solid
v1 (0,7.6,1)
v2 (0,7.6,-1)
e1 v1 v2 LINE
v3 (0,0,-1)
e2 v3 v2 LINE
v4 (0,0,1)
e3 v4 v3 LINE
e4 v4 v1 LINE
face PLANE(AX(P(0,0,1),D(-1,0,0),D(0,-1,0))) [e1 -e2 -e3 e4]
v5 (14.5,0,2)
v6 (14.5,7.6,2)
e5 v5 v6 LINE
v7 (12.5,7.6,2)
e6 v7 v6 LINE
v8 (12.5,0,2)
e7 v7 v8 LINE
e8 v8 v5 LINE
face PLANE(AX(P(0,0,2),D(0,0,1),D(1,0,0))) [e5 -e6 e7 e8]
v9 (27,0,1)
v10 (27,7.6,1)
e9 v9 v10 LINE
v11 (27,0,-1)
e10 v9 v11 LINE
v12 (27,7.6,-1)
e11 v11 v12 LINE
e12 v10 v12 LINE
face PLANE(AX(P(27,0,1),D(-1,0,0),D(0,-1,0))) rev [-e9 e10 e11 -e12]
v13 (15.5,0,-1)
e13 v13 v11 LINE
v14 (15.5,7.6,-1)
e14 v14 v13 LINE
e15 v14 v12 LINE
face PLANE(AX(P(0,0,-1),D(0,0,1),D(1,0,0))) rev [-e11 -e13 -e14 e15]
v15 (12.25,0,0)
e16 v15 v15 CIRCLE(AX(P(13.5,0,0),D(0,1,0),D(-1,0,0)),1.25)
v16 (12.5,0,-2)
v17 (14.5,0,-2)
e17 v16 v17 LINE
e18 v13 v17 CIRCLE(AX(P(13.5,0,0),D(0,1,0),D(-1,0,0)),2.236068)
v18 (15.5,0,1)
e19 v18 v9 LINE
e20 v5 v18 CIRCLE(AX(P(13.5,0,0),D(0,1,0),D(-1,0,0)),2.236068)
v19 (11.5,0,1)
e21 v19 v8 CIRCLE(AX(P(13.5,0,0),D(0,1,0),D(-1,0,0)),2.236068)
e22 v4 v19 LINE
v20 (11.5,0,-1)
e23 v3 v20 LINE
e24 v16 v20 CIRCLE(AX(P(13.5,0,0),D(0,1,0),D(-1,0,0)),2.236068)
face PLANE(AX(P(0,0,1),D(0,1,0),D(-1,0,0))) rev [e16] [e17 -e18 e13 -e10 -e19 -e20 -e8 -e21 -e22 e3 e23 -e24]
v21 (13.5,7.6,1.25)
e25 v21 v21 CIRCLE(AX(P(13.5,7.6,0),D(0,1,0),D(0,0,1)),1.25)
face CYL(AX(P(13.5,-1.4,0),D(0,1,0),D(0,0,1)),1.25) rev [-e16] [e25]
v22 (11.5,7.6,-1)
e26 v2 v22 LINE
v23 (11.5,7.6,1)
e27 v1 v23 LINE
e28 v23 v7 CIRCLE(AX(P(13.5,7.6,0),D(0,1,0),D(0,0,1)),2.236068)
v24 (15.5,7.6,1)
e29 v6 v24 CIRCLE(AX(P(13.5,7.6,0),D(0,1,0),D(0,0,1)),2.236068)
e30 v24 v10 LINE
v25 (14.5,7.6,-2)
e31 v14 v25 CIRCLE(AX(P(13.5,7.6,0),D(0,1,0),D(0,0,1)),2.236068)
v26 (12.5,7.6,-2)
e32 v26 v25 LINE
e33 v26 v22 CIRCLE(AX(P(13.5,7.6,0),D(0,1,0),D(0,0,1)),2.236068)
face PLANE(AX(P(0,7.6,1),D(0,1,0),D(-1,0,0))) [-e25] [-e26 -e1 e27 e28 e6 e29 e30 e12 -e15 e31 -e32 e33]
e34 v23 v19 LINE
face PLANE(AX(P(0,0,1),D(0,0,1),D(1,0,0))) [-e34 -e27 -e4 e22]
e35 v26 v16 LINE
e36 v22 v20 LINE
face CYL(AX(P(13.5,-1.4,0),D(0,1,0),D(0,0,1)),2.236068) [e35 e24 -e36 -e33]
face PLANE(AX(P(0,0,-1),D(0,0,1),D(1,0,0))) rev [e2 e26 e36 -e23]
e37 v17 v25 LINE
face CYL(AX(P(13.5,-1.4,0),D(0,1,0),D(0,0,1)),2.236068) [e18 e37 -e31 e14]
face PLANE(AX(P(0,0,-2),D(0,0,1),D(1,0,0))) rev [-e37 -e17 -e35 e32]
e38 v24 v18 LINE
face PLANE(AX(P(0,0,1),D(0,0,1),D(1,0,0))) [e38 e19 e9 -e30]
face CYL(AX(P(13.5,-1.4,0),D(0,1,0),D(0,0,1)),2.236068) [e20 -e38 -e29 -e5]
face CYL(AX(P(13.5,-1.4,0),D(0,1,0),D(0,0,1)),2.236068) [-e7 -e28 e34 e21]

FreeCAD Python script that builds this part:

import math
import FreeCAD as App
import Part
import Sketcher
Q = App.Units.Quantity

doc = App.newDocument("Part")
params = doc.addObject("Spreadsheet::Sheet", "Params")
for row, (alias, value) in enumerate([
    ("sketch1_width", "11.5 mm"),
    ("sketch1_height", "7.6 mm"),
    ("pad1_length", "1 mm"),
    ("sketch2_width", "11.5 mm"),
    ("sketch2_height", "7.6 mm"),
    ("pad2_length", "1 mm"),
    ("sketch3_width", "11.5 mm"),
    ("sketch3_height", "7.6 mm"),
    ("pad3_length", "1 mm"),
    ("sketch4_width", "4 mm"),
    ("sketch4_height", "7.6 mm"),
    ("pad4_length", "2 mm"),
    ("pad4_length2", "2 mm"),
    ("sketch5_diameter", "2.5 mm"),
    ("sketch5_width", "1 mm"),
    ("pocket1_length", "9 mm"),
], start=1):
    params.set(f"A{row}", alias)
    params.set(f"B{row}", "=" + value)
    params.setAlias(f"B{row}", alias)

body = doc.addObject("PartDesign::Body", "Body")

sketch1 = doc.addObject("Sketcher::SketchObject", "Sketch")
body.addObject(sketch1)
sketch1.AttachmentSupport = (doc.XY_Plane, [""])
sketch1.MapMode = "FlatFace"
sketch1.addGeometry(Part.LineSegment(App.Vector(0, 8, 0), App.Vector(0, 0, 0)), False)
sketch1.addGeometry(Part.LineSegment(App.Vector(0, 0, 0), App.Vector(12, 0, 0)), False)
sketch1.addGeometry(Part.LineSegment(App.Vector(12, 0, 0), App.Vector(12, 8, 0)), False)
sketch1.addGeometry(Part.LineSegment(App.Vector(12, 8, 0), App.Vector(0, 8, 0)), False)
sketch1.addConstraint(Sketcher.Constraint("Coincident", 0, 2, 1, 1))
sketch1.addConstraint(Sketcher.Constraint("Coincident", 1, 2, 2, 1))
sketch1.addConstraint(Sketcher.Constraint("Coincident", 2, 2, 3, 1))
sketch1.addConstraint(Sketcher.Constraint("Coincident", 3, 2, 0, 1))
sketch1.addConstraint(Sketcher.Constraint("Vertical", 0))
sketch1.addConstraint(Sketcher.Constraint("Horizontal", 1))
sketch1.addConstraint(Sketcher.Constraint("Vertical", 2))
sketch1.addConstraint(Sketcher.Constraint("Horizontal", 3))
sketch1.addConstraint(Sketcher.Constraint("Coincident", 0, 2, -1, 1))
sketch1.addConstraint(Sketcher.Constraint("DistanceX", 1, 1, 1, 2, Q("11.5 mm")))
sketch1.addConstraint(Sketcher.Constraint("DistanceY", 0, 2, 0, 1, Q("7.6 mm")))
sketch1.setExpression("Constraints[9]", "Params.sketch1_width")
sketch1.setExpression("Constraints[10]", "Params.sketch1_height")
pad1 = doc.addObject("PartDesign::Pad", "Pad")
body.addObject(pad1)
pad1.Profile = sketch1
pad1.setExpression("Length", "Params.pad1_length")
body2 = doc.addObject("PartDesign::Body", "Body001")

sketch2 = doc.addObject("Sketcher::SketchObject", "Sketch001")
body2.addObject(sketch2)
sketch2.AttachmentSupport = (doc.getObject("XY_Plane001"), [""])
sketch2.MapMode = "FlatFace"
sketch2.addGeometry(Part.LineSegment(App.Vector(16, 8, 0), App.Vector(16, 0, 0)), False)
sketch2.addGeometry(Part.LineSegment(App.Vector(16, 0, 0), App.Vector(27, 0, 0)), False)
sketch2.addGeometry(Part.LineSegment(App.Vector(27, 0, 0), App.Vector(27, 8, 0)), False)
sketch2.addGeometry(Part.LineSegment(App.Vector(27, 8, 0), App.Vector(16, 8, 0)), False)
sketch2.addConstraint(Sketcher.Constraint("Coincident", 0, 2, 1, 1))
sketch2.addConstraint(Sketcher.Constraint("Coincident", 1, 2, 2, 1))
sketch2.addConstraint(Sketcher.Constraint("Coincident", 2, 2, 3, 1))
sketch2.addConstraint(Sketcher.Constraint("Coincident", 3, 2, 0, 1))
sketch2.addConstraint(Sketcher.Constraint("Vertical", 0))
sketch2.addConstraint(Sketcher.Constraint("Horizontal", 1))
sketch2.addConstraint(Sketcher.Constraint("Vertical", 2))
sketch2.addConstraint(Sketcher.Constraint("Horizontal", 3))
sketch2.addConstraint(Sketcher.Constraint("PointOnObject", 0, 2, -1))
sketch2.addConstraint(Sketcher.Constraint("DistanceX", 1, 1, 1, 2, Q("11.5 mm")))
sketch2.addConstraint(Sketcher.Constraint("DistanceY", 0, 2, 0, 1, Q("7.6 mm")))
sketch2.addConstraint(Sketcher.Constraint("DistanceX", -1, 1, 1, 2, Q("27 mm")))
sketch2.setExpression("Constraints[9]", "Params.sketch2_width")
sketch2.setExpression("Constraints[10]", "Params.sketch2_height")
pad2 = doc.addObject("PartDesign::Pad", "Pad001")
body2.addObject(pad2)
pad2.Profile = sketch2
pad2.setExpression("Length", "Params.pad2_length")
body.AllowCompound = True
doc.recompute()

boolean = doc.addObject("PartDesign::Boolean", "Boolean")
body.addObject(boolean)
boolean.Type = "Fuse"
boolean.addObjects([body2])

sketch3 = doc.addObject("Sketcher::SketchObject", "Sketch002")
body.addObject(sketch3)
sketch3.AttachmentSupport = (doc.XY_Plane, [""])
sketch3.MapMode = "FlatFace"
sketch3.addGeometry(Part.LineSegment(App.Vector(16, 8, 0), App.Vector(16, 0, 0)), False)
sketch3.addGeometry(Part.LineSegment(App.Vector(16, 0, 0), App.Vector(27, 0, 0)), False)
sketch3.addGeometry(Part.LineSegment(App.Vector(27, 0, 0), App.Vector(27, 8, 0)), False)
sketch3.addGeometry(Part.LineSegment(App.Vector(27, 8, 0), App.Vector(16, 8, 0)), False)
sketch3.addGeometry(Part.LineSegment(App.Vector(0, 8, 0), App.Vector(0, 0, 0)), False)
sketch3.addGeometry(Part.LineSegment(App.Vector(0, 0, 0), App.Vector(12, 0, 0)), False)
sketch3.addGeometry(Part.LineSegment(App.Vector(12, 0, 0), App.Vector(12, 8, 0)), False)
sketch3.addGeometry(Part.LineSegment(App.Vector(12, 8, 0), App.Vector(0, 8, 0)), False)
sketch3.addConstraint(Sketcher.Constraint("Coincident", 0, 2, 1, 1))
sketch3.addConstraint(Sketcher.Constraint("Coincident", 1, 2, 2, 1))
sketch3.addConstraint(Sketcher.Constraint("Coincident", 2, 2, 3, 1))
sketch3.addConstraint(Sketcher.Constraint("Coincident", 3, 2, 0, 1))
sketch3.addConstraint(Sketcher.Constraint("Coincident", 4, 2, 5, 1))
sketch3.addConstraint(Sketcher.Constraint("Coincident", 5, 2, 6, 1))
sketch3.addConstraint(Sketcher.Constraint("Coincident", 6, 2, 7, 1))
sketch3.addConstraint(Sketcher.Constraint("Coincident", 7, 2, 4, 1))
sketch3.addConstraint(Sketcher.Constraint("Vertical", 0))
sketch3.addConstraint(Sketcher.Constraint("Horizontal", 1))
sketch3.addConstraint(Sketcher.Constraint("Vertical", 2))
sketch3.addConstraint(Sketcher.Constraint("Horizontal", 3))
sketch3.addConstraint(Sketcher.Constraint("Vertical", 4))
sketch3.addConstraint(Sketcher.Constraint("Horizontal", 5))
sketch3.addConstraint(Sketcher.Constraint("Vertical", 6))
sketch3.addConstraint(Sketcher.Constraint("Horizontal", 7))
sketch3.addConstraint(Sketcher.Constraint("Coincident", 4, 2, -1, 1))
sketch3.addConstraint(Sketcher.Constraint("PointOnObject", 0, 2, -1))
sketch3.addConstraint(Sketcher.Constraint("Horizontal", 3, 2, 6, 2))
sketch3.addConstraint(Sketcher.Constraint("Equal", 3, 5))
sketch3.addConstraint(Sketcher.Constraint("DistanceX", 1, 1, 1, 2, Q("11.5 mm")))
sketch3.addConstraint(Sketcher.Constraint("DistanceY", 0, 2, 0, 1, Q("7.6 mm")))
sketch3.addConstraint(Sketcher.Constraint("DistanceX", -1, 1, 1, 2, Q("27 mm")))
sketch3.setExpression("Constraints[20]", "Params.sketch3_width")
sketch3.setExpression("Constraints[21]", "Params.sketch3_height")
pad3 = doc.addObject("PartDesign::Pad", "Pad002")
body.addObject(pad3)
pad3.Profile = sketch3
pad3.setExpression("Length", "Params.pad3_length")
pad3.Reversed = True

sketch4 = doc.addObject("Sketcher::SketchObject", "Sketch003")
body.addObject(sketch4)
sketch4.AttachmentSupport = (doc.XY_Plane, [""])
sketch4.MapMode = "FlatFace"
sketch4.addGeometry(Part.LineSegment(App.Vector(11.5, 7.6, 0), App.Vector(11.5, 0, 0)), False)
sketch4.addGeometry(Part.LineSegment(App.Vector(11.5, 0, 0), App.Vector(15.5, 0, 0)), False)
sketch4.addGeometry(Part.LineSegment(App.Vector(15.5, 0, 0), App.Vector(15.5, 7.6, 0)), False)
sketch4.addGeometry(Part.LineSegment(App.Vector(15.5, 7.6, 0), App.Vector(11.5, 7.6, 0)), False)
sketch4.addConstraint(Sketcher.Constraint("Coincident", 0, 2, 1, 1))
sketch4.addConstraint(Sketcher.Constraint("Coincident", 1, 2, 2, 1))
sketch4.addConstraint(Sketcher.Constraint("Coincident", 2, 2, 3, 1))
sketch4.addConstraint(Sketcher.Constraint("Coincident", 3, 2, 0, 1))
sketch4.addConstraint(Sketcher.Constraint("Vertical", 0))
sketch4.addConstraint(Sketcher.Constraint("Horizontal", 1))
sketch4.addConstraint(Sketcher.Constraint("Vertical", 2))
sketch4.addConstraint(Sketcher.Constraint("Horizontal", 3))
sketch4.addConstraint(Sketcher.Constraint("PointOnObject", 0, 2, -1))
sketch4.addConstraint(Sketcher.Constraint("DistanceX", 1, 1, 1, 2, Q("4 mm")))
sketch4.addConstraint(Sketcher.Constraint("DistanceY", 0, 2, 0, 1, Q("7.6 mm")))
sketch4.addConstraint(Sketcher.Constraint("DistanceX", -1, 1, 0, 2, Q("11.5 mm")))
sketch4.setExpression("Constraints[9]", "Params.sketch4_width")
sketch4.setExpression("Constraints[10]", "Params.sketch4_height")
pad4 = doc.addObject("PartDesign::Pad", "Pad003")
body.addObject(pad4)
pad4.Profile = sketch4
pad4.Type = "TwoLengths"
pad4.setExpression("Length", "Params.pad4_length")
pad4.setExpression("Length2", "Params.pad4_length2")

sketch5 = doc.addObject("Sketcher::SketchObject", "Sketch004")
body.addObject(sketch5)
sketch5.AttachmentSupport = (doc.XZ_Plane, [""])
sketch5.MapMode = "FlatFace"
sketch5.AttachmentOffset = App.Placement(App.Vector(0, 0, -7.6), App.Rotation())
sketch5.addGeometry(Part.LineSegment(App.Vector(12.5, -2, 0), App.Vector(11.5, -2, 0)), False)
sketch5.addGeometry(Part.LineSegment(App.Vector(11.5, -2, 0), App.Vector(11.5, -1, 0)), False)
sketch5.addGeometry(Part.ArcOfCircle(Part.Circle(App.Vector(13.5, 0, 0), App.Vector(0, 0, 1), 2.2), math.radians(-153), math.radians(-117)), False)
sketch5.addGeometry(Part.LineSegment(App.Vector(15.5, -2, 0), App.Vector(14.5, -2, 0)), False)
sketch5.addGeometry(Part.ArcOfCircle(Part.Circle(App.Vector(13.5, 0, 0), App.Vector(0, 0, 1), 2.2), math.radians(-63), math.radians(-27)), False)
sketch5.addGeometry(Part.LineSegment(App.Vector(15.5, -1, 0), App.Vector(15.5, -2, 0)), False)
sketch5.addGeometry(Part.LineSegment(App.Vector(15.5, 2, 0), App.Vector(15.5, 1, 0)), False)
sketch5.addGeometry(Part.ArcOfCircle(Part.Circle(App.Vector(13.5, 0, 0), App.Vector(0, 0, 1), 2.2), math.radians(27), math.radians(63)), False)
sketch5.addGeometry(Part.LineSegment(App.Vector(14.5, 2, 0), App.Vector(15.5, 2, 0)), False)
sketch5.addGeometry(Part.ArcOfCircle(Part.Circle(App.Vector(13.5, 0, 0), App.Vector(0, 0, 1), 2.2), math.radians(117), math.radians(153)), False)
sketch5.addGeometry(Part.LineSegment(App.Vector(11.5, 1, 0), App.Vector(11.5, 2, 0)), False)
sketch5.addGeometry(Part.LineSegment(App.Vector(11.5, 2, 0), App.Vector(12.5, 2, 0)), False)
sketch5.addGeometry(Part.Circle(App.Vector(13.5, 0, 0), App.Vector(0, 0, 1), 1.2), False)
sketch5.addConstraint(Sketcher.Constraint("Coincident", 0, 2, 1, 1))
sketch5.addConstraint(Sketcher.Constraint("Coincident", 1, 2, 2, 1))
sketch5.addConstraint(Sketcher.Constraint("Coincident", 2, 2, 0, 1))
sketch5.addConstraint(Sketcher.Constraint("Coincident", 3, 2, 4, 1))
sketch5.addConstraint(Sketcher.Constraint("Coincident", 4, 2, 5, 1))
sketch5.addConstraint(Sketcher.Constraint("Coincident", 5, 2, 3, 1))
sketch5.addConstraint(Sketcher.Constraint("Coincident", 6, 2, 7, 1))
sketch5.addConstraint(Sketcher.Constraint("Coincident", 7, 2, 8, 1))
sketch5.addConstraint(Sketcher.Constraint("Coincident", 8, 2, 6, 1))
sketch5.addConstraint(Sketcher.Constraint("Coincident", 9, 2, 10, 1))
sketch5.addConstraint(Sketcher.Constraint("Coincident", 10, 2, 11, 1))
sketch5.addConstraint(Sketcher.Constraint("Coincident", 11, 2, 9, 1))
sketch5.addConstraint(Sketcher.Constraint("Horizontal", 0))
sketch5.addConstraint(Sketcher.Constraint("Vertical", 1))
sketch5.addConstraint(Sketcher.Constraint("Horizontal", 3))
sketch5.addConstraint(Sketcher.Constraint("Vertical", 5))
sketch5.addConstraint(Sketcher.Constraint("Vertical", 6))
sketch5.addConstraint(Sketcher.Constraint("Horizontal", 8))
sketch5.addConstraint(Sketcher.Constraint("Vertical", 10))
sketch5.addConstraint(Sketcher.Constraint("Horizontal", 11))
sketch5.addConstraint(Sketcher.Constraint("Coincident", 4, 3, 2, 3))
sketch5.addConstraint(Sketcher.Constraint("Coincident", 7, 3, 2, 3))
sketch5.addConstraint(Sketcher.Constraint("Coincident", 9, 3, 2, 3))
sketch5.addConstraint(Sketcher.Constraint("Coincident", 12, 3, 2, 3))
sketch5.addConstraint(Sketcher.Constraint("Equal", 2, 4))
sketch5.addConstraint(Sketcher.Constraint("Equal", 4, 7))
sketch5.addConstraint(Sketcher.Constraint("Equal", 7, 9))
sketch5.addConstraint(Sketcher.Constraint("Symmetric", 4, 2, 6, 2, -1))
sketch5.addConstraint(Sketcher.Constraint("Symmetric", 0, 2, 10, 2, -1))
sketch5.addConstraint(Sketcher.Constraint("Horizontal", 2, 2, 3, 2))
sketch5.addConstraint(Sketcher.Constraint("Horizontal", 1, 2, 4, 2))
sketch5.addConstraint(Sketcher.Constraint("Horizontal", 8, 2, 10, 2))
sketch5.addConstraint(Sketcher.Constraint("Equal", 11, 1))
sketch5.addConstraint(Sketcher.Constraint("Diameter", 12, Q("2.5 mm")))
sketch5.addConstraint(Sketcher.Constraint("DistanceX", 0, 2, 0, 1, Q("1 mm")))
sketch5.addConstraint(Sketcher.Constraint("DistanceY", 0, 2, -1, 1, Q("2 mm")))
sketch5.addConstraint(Sketcher.Constraint("DistanceX", -1, 1, 2, 3, Q("13.5 mm")))
sketch5.setExpression("Constraints[33]", "Params.sketch5_diameter")
sketch5.setExpression("Constraints[34]", "Params.sketch5_width")
pocket1 = doc.addObject("PartDesign::Pocket", "Pocket")
body.addObject(pocket1)
pocket1.Profile = sketch5
pocket1.setExpression("Length", "Params.pocket1_length")
pocket1.Reversed = True

doc.recompute()
